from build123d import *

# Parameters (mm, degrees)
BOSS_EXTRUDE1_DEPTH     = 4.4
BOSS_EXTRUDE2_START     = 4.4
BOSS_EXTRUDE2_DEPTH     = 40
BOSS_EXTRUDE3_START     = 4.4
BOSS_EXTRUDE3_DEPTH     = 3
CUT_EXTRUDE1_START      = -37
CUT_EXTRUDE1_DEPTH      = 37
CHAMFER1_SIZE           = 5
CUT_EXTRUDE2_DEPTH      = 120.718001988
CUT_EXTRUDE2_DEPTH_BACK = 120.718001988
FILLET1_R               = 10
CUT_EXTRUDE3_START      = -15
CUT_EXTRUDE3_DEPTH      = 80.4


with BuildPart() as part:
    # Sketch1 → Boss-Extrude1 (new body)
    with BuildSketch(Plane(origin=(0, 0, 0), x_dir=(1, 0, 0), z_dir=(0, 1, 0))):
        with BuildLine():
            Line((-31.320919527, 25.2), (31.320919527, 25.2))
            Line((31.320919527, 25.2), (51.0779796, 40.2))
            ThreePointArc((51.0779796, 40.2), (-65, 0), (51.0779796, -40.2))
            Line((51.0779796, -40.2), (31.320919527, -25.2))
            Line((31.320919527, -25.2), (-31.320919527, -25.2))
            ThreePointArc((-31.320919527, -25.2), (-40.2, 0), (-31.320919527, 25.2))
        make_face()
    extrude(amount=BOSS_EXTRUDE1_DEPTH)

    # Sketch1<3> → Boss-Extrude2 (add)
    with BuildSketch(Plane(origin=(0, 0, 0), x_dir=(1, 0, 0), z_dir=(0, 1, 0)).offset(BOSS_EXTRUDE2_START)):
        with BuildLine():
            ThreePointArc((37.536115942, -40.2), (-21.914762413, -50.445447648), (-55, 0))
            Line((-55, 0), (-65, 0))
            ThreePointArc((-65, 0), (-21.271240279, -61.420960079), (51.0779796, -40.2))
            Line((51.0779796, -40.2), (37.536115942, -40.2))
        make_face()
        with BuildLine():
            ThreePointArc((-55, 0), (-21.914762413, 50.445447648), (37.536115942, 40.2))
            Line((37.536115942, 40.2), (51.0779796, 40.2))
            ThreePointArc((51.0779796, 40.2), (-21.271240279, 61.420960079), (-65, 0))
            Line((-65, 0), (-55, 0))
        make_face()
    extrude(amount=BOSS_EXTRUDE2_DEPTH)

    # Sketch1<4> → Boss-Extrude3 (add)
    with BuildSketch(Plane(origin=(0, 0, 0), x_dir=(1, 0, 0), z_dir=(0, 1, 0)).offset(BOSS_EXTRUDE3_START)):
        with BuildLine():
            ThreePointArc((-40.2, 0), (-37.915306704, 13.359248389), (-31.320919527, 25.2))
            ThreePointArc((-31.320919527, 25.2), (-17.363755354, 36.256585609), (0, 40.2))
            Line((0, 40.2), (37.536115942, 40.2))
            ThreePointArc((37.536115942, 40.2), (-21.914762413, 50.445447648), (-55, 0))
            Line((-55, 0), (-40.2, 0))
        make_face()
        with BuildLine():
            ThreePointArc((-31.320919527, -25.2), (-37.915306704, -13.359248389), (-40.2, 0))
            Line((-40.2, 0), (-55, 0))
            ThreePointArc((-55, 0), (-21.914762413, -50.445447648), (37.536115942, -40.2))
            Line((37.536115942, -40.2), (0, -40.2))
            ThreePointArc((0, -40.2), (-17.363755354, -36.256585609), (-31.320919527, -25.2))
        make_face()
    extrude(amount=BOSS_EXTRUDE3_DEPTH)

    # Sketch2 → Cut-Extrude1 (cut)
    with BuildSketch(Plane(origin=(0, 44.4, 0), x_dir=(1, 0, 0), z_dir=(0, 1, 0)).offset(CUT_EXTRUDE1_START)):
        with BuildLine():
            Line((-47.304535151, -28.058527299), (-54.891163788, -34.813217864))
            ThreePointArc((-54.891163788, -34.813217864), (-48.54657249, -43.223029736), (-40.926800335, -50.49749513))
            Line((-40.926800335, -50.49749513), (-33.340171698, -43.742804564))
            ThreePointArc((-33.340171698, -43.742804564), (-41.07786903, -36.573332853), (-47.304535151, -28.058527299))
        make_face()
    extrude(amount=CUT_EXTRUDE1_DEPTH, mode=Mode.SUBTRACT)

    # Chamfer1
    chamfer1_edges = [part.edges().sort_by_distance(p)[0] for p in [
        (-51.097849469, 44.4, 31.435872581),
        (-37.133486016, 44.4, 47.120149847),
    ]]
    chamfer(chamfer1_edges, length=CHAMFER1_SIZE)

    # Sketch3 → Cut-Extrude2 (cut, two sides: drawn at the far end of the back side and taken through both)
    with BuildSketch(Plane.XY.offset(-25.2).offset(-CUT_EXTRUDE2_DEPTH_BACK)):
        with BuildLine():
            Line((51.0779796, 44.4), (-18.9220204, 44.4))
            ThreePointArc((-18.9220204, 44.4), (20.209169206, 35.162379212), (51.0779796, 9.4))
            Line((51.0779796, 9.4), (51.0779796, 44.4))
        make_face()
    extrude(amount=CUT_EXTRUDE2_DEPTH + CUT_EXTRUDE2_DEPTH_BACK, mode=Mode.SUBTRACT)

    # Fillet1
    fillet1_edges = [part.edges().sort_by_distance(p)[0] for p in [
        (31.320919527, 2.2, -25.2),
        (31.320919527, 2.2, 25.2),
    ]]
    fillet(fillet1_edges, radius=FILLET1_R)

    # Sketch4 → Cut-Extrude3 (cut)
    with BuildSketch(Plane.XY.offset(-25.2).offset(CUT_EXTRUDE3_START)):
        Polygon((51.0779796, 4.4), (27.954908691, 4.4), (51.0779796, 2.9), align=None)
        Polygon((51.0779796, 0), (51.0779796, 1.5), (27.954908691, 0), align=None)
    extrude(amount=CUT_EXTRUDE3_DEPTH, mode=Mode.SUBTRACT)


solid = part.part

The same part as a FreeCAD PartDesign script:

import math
import FreeCAD as App
import Part
import Sketcher
Q = App.Units.Quantity


def edges_at(feature, points):
    """Names of the edges that pass closest to the given points."""
    edges = feature.Shape.Edges
    near = lambda p: min(range(len(edges)), key=lambda i: edges[i].distToShape(Part.Vertex(*p))[0])
    return sorted({f"Edge{near(p) + 1}" for p in points})


def add_polygon(sketch, points):
    """Adds a closed chain of lines whose ends are joined by coincident constraints."""
    first, n = sketch.GeometryCount, len(points)
    for a, b in zip(points, points[1:] + points[:1]):
        sketch.addGeometry(Part.LineSegment(App.Vector(*a, 0), App.Vector(*b, 0)), False)
    for i in range(n):
        sketch.addConstraint(Sketcher.Constraint("Coincident", first + i, 2, first + (i + 1) % n, 1))

doc = App.newDocument("Part")
body = doc.addObject("PartDesign::Body", "Body")

# Sketch on XZ plane
sketch1 = body.newObject("Sketcher::SketchObject", "Sketch")
sketch1.AttachmentSupport = (doc.getObject("XZ_Plane"), [""])
sketch1.MapMode = "FlatFace"
sketch1.addGeometry([
    Part.LineSegment(App.Vector(-31, -25, 0), App.Vector(31, -25, 0)),  # 0
    Part.LineSegment(App.Vector(31, -25, 0), App.Vector(51, -40, 0)),  # 1
    Part.ArcOfCircle(Part.Circle(App.Vector(0, 0, 0), App.Vector(0, 0, 1), 65), math.radians(38), math.radians(322)),  # 2
    Part.LineSegment(App.Vector(51, 40, 0), App.Vector(31, 25, 0)),  # 3
    Part.LineSegment(App.Vector(31, 25, 0), App.Vector(-31, 25, 0)),  # 4
    Part.ArcOfCircle(Part.Circle(App.Vector(0, 0, 0), App.Vector(0, 0, 1), 40), math.radians(141), math.radians(219)),  # 5
], False)
sketch1.addConstraint([
    Sketcher.Constraint("Coincident", 0, 2, 1, 1),
    Sketcher.Constraint("Coincident", 1, 2, 2, 2),
    Sketcher.Constraint("Coincident", 2, 1, 3, 1),
    Sketcher.Constraint("Coincident", 3, 2, 4, 1),
    Sketcher.Constraint("Coincident", 4, 2, 5, 1),
    Sketcher.Constraint("Coincident", 5, 2, 0, 1),
    Sketcher.Constraint("Horizontal", 0),
    Sketcher.Constraint("Horizontal", 4),
    Sketcher.Constraint("Coincident", 2, 3, -1, 1),
    Sketcher.Constraint("Coincident", 5, 3, -1, 1),
    Sketcher.Constraint("Symmetric", 0, 2, 4, 2, -1, 1),
    Sketcher.Constraint("Vertical", 1, 2, 2, 1),
    Sketcher.Constraint("Vertical", 0, 2, 3, 2),
    Sketcher.Constraint("Radius", 2, Q("65 mm")),
    Sketcher.Constraint("Radius", 5, Q("40.2 mm")),
    Sketcher.Constraint("DistanceY", 1, 2, 0, 2, Q("15 mm")),
    Sketcher.Constraint("DistanceY", 0, 2, -1, 1, Q("25.2 mm")),
])
pad1 = body.newObject("PartDesign::Pad", "Pad")
pad1.Profile = sketch1
pad1.Length = 4.4
pad1.Reversed = True

# Sketch on XZ plane
sketch2 = body.newObject("Sketcher::SketchObject", "Sketch001")
sketch2.AttachmentSupport = (doc.getObject("XZ_Plane"), [""])
sketch2.MapMode = "FlatFace"
sketch2.AttachmentOffset = App.Placement(App.Vector(0, 0, -4.4), App.Rotation())
sketch2.addGeometry([
    Part.ArcOfCircle(Part.Circle(App.Vector(0, 0, 0), App.Vector(0, 0, 1), 55), math.radians(47), math.radians(180)),  # 0
    Part.ArcOfCircle(Part.Circle(App.Vector(0, 0, 0), App.Vector(0, 0, 1), 55), math.radians(180), math.radians(313)),  # 1
    Part.LineSegment(App.Vector(38, -40, 0), App.Vector(51, -40, 0)),  # 2
    Part.ArcOfCircle(Part.Circle(App.Vector(0, 0, 0), App.Vector(0, 0, 1), 65), math.radians(180), math.radians(322)),  # 3
    Part.ArcOfCircle(Part.Circle(App.Vector(0, 0, 0), App.Vector(0, 0, 1), 65), math.radians(38), math.radians(180)),  # 4
    Part.LineSegment(App.Vector(51, 40, 0), App.Vector(38, 40, 0)),  # 5
], False)
sketch2.addConstraint([
    Sketcher.Constraint("Tangent", 0, 2, 1, 1),
    Sketcher.Constraint("Coincident", 1, 2, 2, 1),
    Sketcher.Constraint("Coincident", 2, 2, 3, 2),
    Sketcher.Constraint("Tangent", 3, 1, 4, 2),
    Sketcher.Constraint("Coincident", 4, 1, 5, 1),
    Sketcher.Constraint("Coincident", 5, 2, 0, 1),
    Sketcher.Constraint("Horizontal", 2),
    Sketcher.Constraint("Horizontal", 5),
    Sketcher.Constraint("Coincident", 0, 3, -1, 1),
    Sketcher.Constraint("Coincident", 3, 3, -1, 1),
    Sketcher.Constraint("Equal", 0, 1),
    Sketcher.Constraint("Equal", 3, 4),
    Sketcher.Constraint("PointOnObject", 0, 2, -1),
    Sketcher.Constraint("PointOnObject", 3, 1, -1),
    Sketcher.Constraint("Vertical", 2, 2, 4, 1),
    Sketcher.Constraint("Radius", 0, Q("55 mm")),
    Sketcher.Constraint("Radius", 3, Q("65 mm")),
    Sketcher.Constraint("DistanceY", 1, 2, -1, 1, Q("40.2 mm")),
])
pad2 = body.newObject("PartDesign::Pad", "Pad001")
pad2.Profile = sketch2
pad2.Length = 40
pad2.Reversed = True

# Sketch on XZ plane
sketch3 = body.newObject("Sketcher::SketchObject", "Sketch002")
sketch3.AttachmentSupport = (doc.getObject("XZ_Plane"), [""])
sketch3.MapMode = "FlatFace"
sketch3.AttachmentOffset = App.Placement(App.Vector(0, 0, -4.4), App.Rotation())
sketch3.addGeometry([
    Part.ArcOfCircle(Part.Circle(App.Vector(0, 0, 0), App.Vector(0, 0, 1), 40), math.radians(-180), math.radians(-141)),  # 0
    Part.ArcOfCircle(Part.Circle(App.Vector(0, 0, 0), App.Vector(0, 0, 1), 40), math.radians(-141), math.radians(-90)),  # 1
    Part.LineSegment(App.Vector(0, -40, 0), App.Vector(38, -40, 0)),  # 2
    Part.ArcOfCircle(Part.Circle(App.Vector(0, 0, 0), App.Vector(0, 0, 1), 55), math.radians(180), math.radians(313)),  # 3
    Part.ArcOfCircle(Part.Circle(App.Vector(0, 0, 0), App.Vector(0, 0, 1), 55), math.radians(47), math.radians(180)),  # 4
    Part.LineSegment(App.Vector(38, 40, 0), App.Vector(0, 40, 0)),  # 5
    Part.ArcOfCircle(Part.Circle(App.Vector(0, 0, 0), App.Vector(0, 0, 1), 40), math.radians(90), math.radians(141)),  # 6
    Part.ArcOfCircle(Part.Circle(App.Vector(0, 0, 0), App.Vector(0, 0, 1), 40), math.radians(141), math.radians(180)),  # 7
], False)
sketch3.addConstraint([
    Sketcher.Constraint("Tangent", 0, 2, 1, 1),
    Sketcher.Constraint("Tangent", 1, 2, 2, 1),
    Sketcher.Constraint("Coincident", 2, 2, 3, 2),
    Sketcher.Constraint("Tangent", 3, 1, 4, 2),
    Sketcher.Constraint("Coincident", 4, 1, 5, 1),
    Sketcher.Constraint("Tangent", 5, 2, 6, 1),
    Sketcher.Constraint("Tangent", 6, 2, 7, 1),
    Sketcher.Constraint("Tangent", 7, 2, 0, 1),
    Sketcher.Constraint("Horizontal", 2),
    Sketcher.Constraint("Horizontal", 5),
    Sketcher.Constraint("Coincident", 0, 3, -1, 1),
    Sketcher.Constraint("Coincident", 3, 3, -1, 1),
    Sketcher.Constraint("Coincident", 6, 3, -1, 1),
    Sketcher.Constraint("Equal", 0, 1),
    Sketcher.Constraint("Equal", 3, 4),
    Sketcher.Constraint("PointOnObject", 3, 1, -1),
    Sketcher.Constraint("PointOnObject", 7, 2, -1),
    Sketcher.Constraint("Vertical", 0, 2, 6, 2),
    Sketcher.Constraint("Radius", 3, Q("55 mm")),
    Sketcher.Constraint("Radius", 0, Q("40.2 mm")),
    Sketcher.Constraint("DistanceY", 1, 2, 0, 2, Q("15 mm")),
])
pad3 = body.newObject("PartDesign::Pad", "Pad002")
pad3.Profile = sketch3
pad3.Length = 3
pad3.Reversed = True

# Sketch on XZ plane
sketch4 = body.newObject("Sketcher::SketchObject", "Sketch003")
sketch4.AttachmentSupport = (doc.getObject("XZ_Plane"), [""])
sketch4.MapMode = "FlatFace"
sketch4.AttachmentOffset = App.Placement(App.Vector(0, 0, -7.4), App.Rotation())
sketch4.addGeometry([
    Part.LineSegment(App.Vector(-47, 28, 0), App.Vector(-55, 35, 0)),
    Part.ArcOfCircle(Part.Circle(App.Vector(0, 0, 0), App.Vector(0, 0, 1), 65), math.radians(129.02), math.radians(147.62)),
    Part.LineSegment(App.Vector(-41, 50, 0), App.Vector(-33, 44, 0)),
    Part.ArcOfCircle(Part.Circle(App.Vector(0, 0, 0), App.Vector(0, 0, 1), 55), math.radians(127), math.radians(149)),
], False)
sketch4.addConstraint([
    Sketcher.Constraint("Coincident", 0, 2, 1, 2),
    Sketcher.Constraint("Coincident", 1, 1, 2, 1),
    Sketcher.Constraint("Coincident", 2, 2, 3, 1),
    Sketcher.Constraint("Coincident", 3, 2, 0, 1),
    Sketcher.Constraint("Coincident", 1, 3, -1, 1),
    Sketcher.Constraint("Coincident", 3, 3, -1, 1),
    Sketcher.Constraint("Parallel", 0, 2),
    Sketcher.Constraint("Equal", 0, 2),
    Sketcher.Constraint("Radius", 1, Q("65 mm")),
    Sketcher.Constraint("Radius", 3, Q("55 mm")),
    Sketcher.Constraint("Angle", 0, Q("138.32 deg")),
    Sketcher.Constraint("DistanceX", 1, 1, -1, 1, Q("40.9268 mm")),
])
pocket1 = body.newObject("PartDesign::Pocket", "Pocket")
pocket1.Profile = sketch4
pocket1.Length = 37
doc.recompute()

chamfer = body.newObject("PartDesign::Chamfer", "Chamfer")
chamfer.Base = (pocket1, edges_at(pocket1, [(-51.098, 44.4, 31.436), (-37.133, 44.4, 47.12)]))
chamfer.Size = 5

# Sketch on XY plane
sketch5 = body.newObject("Sketcher::SketchObject", "Sketch004")
sketch5.AttachmentSupport = (doc.getObject("XY_Plane"), [""])
sketch5.MapMode = "FlatFace"
sketch5.AttachmentOffset = App.Placement(App.Vector(0, 0, -25.2), App.Rotation())
sketch5.addGeometry([
    Part.LineSegment(App.Vector(51, 44, 0), App.Vector(-19, 44, 0)),
    Part.ArcOfCircle(Part.Circle(App.Vector(-19, -43, 0), App.Vector(0, 0, 1), 88), math.radians(37), math.radians(90)),
    Part.LineSegment(App.Vector(51, 9, 0), App.Vector(51, 44, 0)),
], False)
sketch5.addConstraint([
    Sketcher.Constraint("Tangent", 0, 2, 1, 2),
    Sketcher.Constraint("Coincident", 1, 1, 2, 1),
    Sketcher.Constraint("Coincident", 2, 2, 0, 1),
    Sketcher.Constraint("Horizontal", 0),
    Sketcher.Constraint("Vertical", 2),
    Sketcher.Constraint("Radius", 1, Q("87.5 mm")),
    Sketcher.Constraint("DistanceX", 0, 2, 0, 1, Q("70 mm")),
    Sketcher.Constraint("DistanceY", 1, 3, -1, 1, Q("43.1 mm")),
    Sketcher.Constraint("DistanceX", 1, 3, -1, 1, Q("18.92202 mm")),
])
pocket2 = body.newObject("PartDesign::Pocket", "Pocket001")
pocket2.Profile = sketch5
pocket2.Type = "ThroughAll"
pocket2.Midplane = True
doc.recompute()

fillet = body.newObject("PartDesign::Fillet", "Fillet")
fillet.Base = (pocket2, edges_at(pocket2, [(31.321, 2.2, -25.2), (31.321, 2.2, 25.2)]))
fillet.Radius = 10

# Sketch on XY plane
sketch6 = body.newObject("Sketcher::SketchObject", "Sketch005")
sketch6.AttachmentSupport = (doc.getObject("XY_Plane"), [""])
sketch6.MapMode = "FlatFace"
sketch6.AttachmentOffset = App.Placement(App.Vector(0, 0, -40.2), App.Rotation())
add_polygon(sketch6, [(51.1, 4.4), (28, 4.4), (51.1, 2.9)])  # lines 0-2
add_polygon(sketch6, [(51.1, 0), (51.1, 1.5), (28, 0)])  # lines 3-5
sketch6.addConstraint([
    Sketcher.Constraint("Horizontal", 0),
    Sketcher.Constraint("Vertical", 2),
    Sketcher.Constraint("Vertical", 3),
    Sketcher.Constraint("Horizontal", 5),
    Sketcher.Constraint("PointOnObject", 4, 2, -1),
    Sketcher.Constraint("Vertical", 2, 2, 3, 2),
    Sketcher.Constraint("Vertical", 0, 2, 4, 2),
    Sketcher.Constraint("Equal", 2, 3),
    Sketcher.Constraint("DistanceY", 2, 1, 2, 2, Q("1.5 mm")),
    Sketcher.Constraint("DistanceY", -1, 1, 0, 2, Q("4.4 mm")),
    Sketcher.Constraint("DistanceX", 0, 2, 0, 1, Q("23.123071 mm")),
    Sketcher.Constraint("DistanceX", -1, 1, 0, 2, Q("27.954909 mm")),
])
pocket3 = body.newObject("PartDesign::Pocket", "Pocket002")
pocket3.Profile = sketch6
pocket3.Length = 80.4
pocket3.Reversed = True

doc.recompute()
